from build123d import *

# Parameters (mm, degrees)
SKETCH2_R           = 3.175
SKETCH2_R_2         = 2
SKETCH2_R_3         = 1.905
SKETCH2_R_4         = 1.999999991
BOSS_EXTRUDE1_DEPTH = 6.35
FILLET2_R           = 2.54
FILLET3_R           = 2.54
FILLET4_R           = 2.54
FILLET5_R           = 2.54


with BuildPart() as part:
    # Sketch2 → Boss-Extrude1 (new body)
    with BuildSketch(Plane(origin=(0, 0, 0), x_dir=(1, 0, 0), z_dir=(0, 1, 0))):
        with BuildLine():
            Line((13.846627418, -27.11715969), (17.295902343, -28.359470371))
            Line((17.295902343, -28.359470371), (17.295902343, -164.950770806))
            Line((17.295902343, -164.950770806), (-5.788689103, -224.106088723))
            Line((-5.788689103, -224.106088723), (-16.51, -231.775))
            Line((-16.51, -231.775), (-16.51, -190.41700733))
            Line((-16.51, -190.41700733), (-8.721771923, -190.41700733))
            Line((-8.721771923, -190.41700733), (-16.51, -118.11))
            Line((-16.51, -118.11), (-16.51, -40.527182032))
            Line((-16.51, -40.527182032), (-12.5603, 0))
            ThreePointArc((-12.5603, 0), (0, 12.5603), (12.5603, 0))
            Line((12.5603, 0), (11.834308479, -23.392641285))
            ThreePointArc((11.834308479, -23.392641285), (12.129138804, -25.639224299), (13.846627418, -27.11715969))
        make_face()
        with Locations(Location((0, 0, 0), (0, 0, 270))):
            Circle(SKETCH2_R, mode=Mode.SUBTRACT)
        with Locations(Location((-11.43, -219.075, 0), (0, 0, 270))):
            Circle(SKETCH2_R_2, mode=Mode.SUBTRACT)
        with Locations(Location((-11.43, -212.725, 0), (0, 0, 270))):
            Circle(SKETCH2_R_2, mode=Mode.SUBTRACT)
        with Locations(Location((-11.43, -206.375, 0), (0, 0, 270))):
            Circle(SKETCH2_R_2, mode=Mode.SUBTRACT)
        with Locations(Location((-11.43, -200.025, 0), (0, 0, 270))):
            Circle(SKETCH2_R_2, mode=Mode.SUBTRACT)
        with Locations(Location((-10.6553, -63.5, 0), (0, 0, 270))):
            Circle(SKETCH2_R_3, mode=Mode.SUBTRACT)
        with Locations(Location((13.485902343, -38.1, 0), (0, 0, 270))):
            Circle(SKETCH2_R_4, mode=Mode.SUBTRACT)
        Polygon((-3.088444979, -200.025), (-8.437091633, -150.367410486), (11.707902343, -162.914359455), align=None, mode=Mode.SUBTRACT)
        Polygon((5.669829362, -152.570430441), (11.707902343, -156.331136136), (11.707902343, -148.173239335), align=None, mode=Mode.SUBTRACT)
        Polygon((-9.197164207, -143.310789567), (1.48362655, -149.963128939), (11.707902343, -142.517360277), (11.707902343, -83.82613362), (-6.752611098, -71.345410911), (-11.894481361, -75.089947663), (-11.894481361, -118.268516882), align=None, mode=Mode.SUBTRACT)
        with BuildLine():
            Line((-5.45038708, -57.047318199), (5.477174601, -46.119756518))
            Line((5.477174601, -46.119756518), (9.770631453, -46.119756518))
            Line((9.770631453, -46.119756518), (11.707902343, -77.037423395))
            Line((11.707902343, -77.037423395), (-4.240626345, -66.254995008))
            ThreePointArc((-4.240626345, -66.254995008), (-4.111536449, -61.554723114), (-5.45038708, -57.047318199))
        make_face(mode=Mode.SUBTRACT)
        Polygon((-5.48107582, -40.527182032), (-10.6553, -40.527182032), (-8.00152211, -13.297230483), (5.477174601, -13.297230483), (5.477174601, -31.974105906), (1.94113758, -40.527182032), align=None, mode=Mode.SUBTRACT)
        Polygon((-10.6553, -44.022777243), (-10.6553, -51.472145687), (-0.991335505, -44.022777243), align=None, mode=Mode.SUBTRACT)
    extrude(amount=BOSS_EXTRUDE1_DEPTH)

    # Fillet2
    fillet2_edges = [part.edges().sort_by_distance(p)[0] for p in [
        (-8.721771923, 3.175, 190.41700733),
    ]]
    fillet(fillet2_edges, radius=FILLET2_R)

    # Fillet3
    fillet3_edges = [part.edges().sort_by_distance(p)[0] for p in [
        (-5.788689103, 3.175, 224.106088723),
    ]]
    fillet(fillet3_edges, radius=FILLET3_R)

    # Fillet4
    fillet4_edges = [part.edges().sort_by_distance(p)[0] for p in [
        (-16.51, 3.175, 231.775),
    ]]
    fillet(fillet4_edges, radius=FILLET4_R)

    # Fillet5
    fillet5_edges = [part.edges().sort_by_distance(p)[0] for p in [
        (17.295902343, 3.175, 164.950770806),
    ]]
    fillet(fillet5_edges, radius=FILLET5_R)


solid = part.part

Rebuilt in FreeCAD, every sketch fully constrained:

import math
import FreeCAD as App
import Part
import Sketcher
from FreeCAD import Vector
Q = App.Units.Quantity


def edges_at(feature, points):
    """Names of the edges that pass closest to the given points."""
    edges = feature.Shape.Edges
    near = lambda p: min(range(len(edges)), key=lambda i: edges[i].distToShape(Part.Vertex(*p))[0])
    return sorted({f"Edge{near(p) + 1}" for p in points})


def add_polygon(sketch, points):
    """Adds a closed chain of lines whose ends are joined by coincident constraints."""
    first, n = sketch.GeometryCount, len(points)
    for a, b in zip(points, points[1:] + points[:1]):
        sketch.addGeometry(Part.LineSegment(App.Vector(*a, 0), App.Vector(*b, 0)), False)
    for i in range(n):
        sketch.addConstraint(Sketcher.Constraint("Coincident", first + i, 2, first + (i + 1) % n, 1))

doc = App.newDocument("Part")
params = doc.addObject("Spreadsheet::Sheet", "Params")
for row, (alias, value) in enumerate([
    ("sketch1_diameter", "0.15 in"),
    ("sketch1_diameter2", "0.25 in"),
    ("sketch1_radius", "0.125 in"),
    ("sketch1_length", "2.5 in"),
    ("pad1_length", "0.25 in"),
    ("fillet_radius", "0.1 in"),
    ("fillet2_radius", "0.1 in"),
    ("fillet3_radius", "0.1 in"),
    ("fillet4_radius", "0.1 in"),
], start=1):
    params.set(f"A{row}", alias)
    params.set(f"B{row}", "=" + value)
    params.setAlias(f"B{row}", alias)

body = doc.addObject("PartDesign::Body", "Body")

sketch1 = body.newObject("Sketcher::SketchObject", "Sketch")
sketch1.AttachmentSupport = (doc.getObject("XZ_Plane"), [""])
sketch1.MapMode = "FlatFace"
sketch1.addGeometry(Part.LineSegment(Vector(17.295902, 28.35947, 0), Vector(13.846627, 27.11716, 0)), False)
sketch1.addGeometry(Part.ArcOfCircle(Part.Circle(Vector(14.9225, 24.13, 0), Vector(0, 0, 1), 3.175), math.radians(109.807283), math.radians(193.428925)), False)
sketch1.addGeometry(Part.LineSegment(Vector(11.834308, 23.392641, 0), Vector(12.5603, 0, 0)), False)
sketch1.addGeometry(Part.ArcOfCircle(Part.Circle(Vector(0, 0, 0), Vector(0, 0, 1), 12.5603), math.radians(180), math.radians(360)), False)
sketch1.addGeometry(Part.LineSegment(Vector(-12.5603, 0, 0), Vector(-16.51, 40.527182, 0)), False)
sketch1.addGeometry(Part.LineSegment(Vector(-16.51, 40.527182, 0), Vector(-16.51, 118.11, 0)), False)
sketch1.addGeometry(Part.LineSegment(Vector(-16.51, 118.11, 0), Vector(-8.721772, 190.417007, 0)), False)
sketch1.addGeometry(Part.LineSegment(Vector(-8.721772, 190.417007, 0), Vector(-16.51, 190.417007, 0)), False)
sketch1.addGeometry(Part.LineSegment(Vector(-16.51, 190.417007, 0), Vector(-16.51, 231.775, 0)), False)
sketch1.addGeometry(Part.LineSegment(Vector(-16.51, 231.775, 0), Vector(-5.788689, 224.106089, 0)), False)
sketch1.addGeometry(Part.LineSegment(Vector(-5.788689, 224.106089, 0), Vector(17.295902, 164.950771, 0)), False)
sketch1.addGeometry(Part.LineSegment(Vector(17.295902, 164.950771, 0), Vector(17.295902, 28.35947, 0)), False)
add_polygon(sketch1, [(-3.088445, 200.025), (-8.437092, 150.36741), (11.707902, 162.914359)])
add_polygon(sketch1, [(5.669829, 152.57043), (11.707902, 148.173239), (11.707902, 156.331136)])
sketch1.addGeometry(Part.Circle(Vector(-11.43, 219.075, 0), Vector(0, 0, 1), 2), False)
sketch1.addGeometry(Part.Circle(Vector(-11.43, 212.725, 0), Vector(0, 0, 1), 2), False)
sketch1.addGeometry(Part.Circle(Vector(-11.43, 206.375, 0), Vector(0, 0, 1), 2), False)
sketch1.addGeometry(Part.Circle(Vector(-11.43, 200.025, 0), Vector(0, 0, 1), 2), False)
add_polygon(sketch1, [(-9.197164, 143.31079), (-11.894481, 118.268517), (-11.894481, 75.089948), (-6.752611, 71.345411), (11.707902, 83.826134), (11.707902, 142.51736), (1.483627, 149.963129)])
sketch1.addGeometry(Part.LineSegment(Vector(-5.450387, 57.047318, 0), Vector(5.477175, 46.119757, 0)), False)
sketch1.addGeometry(Part.LineSegment(Vector(5.477175, 46.119757, 0), Vector(9.770631, 46.119757, 0)), False)
sketch1.addGeometry(Part.LineSegment(Vector(9.770631, 46.119757, 0), Vector(11.707902, 77.037423, 0)), False)
sketch1.addGeometry(Part.LineSegment(Vector(11.707902, 77.037423, 0), Vector(-4.240626, 66.254995, 0)), False)
sketch1.addGeometry(Part.ArcOfCircle(Part.Circle(Vector(-18.917341, 63.5, 0), Vector(0, 0, 1), 14.933049), math.radians(-25.601379), math.radians(10.631387)), False)
sketch1.addGeometry(Part.Circle(Vector(13.485902, 38.1, 0), Vector(0, 0, 1), 2), False)
sketch1.addGeometry(Part.Circle(Vector(-10.6553, 63.5, 0), Vector(0, 0, 1), 1.905), False)
add_polygon(sketch1, [(-10.6553, 44.022777), (-0.991336, 44.022777), (-10.6553, 51.472146)])
add_polygon(sketch1, [(-10.6553, 40.527182), (-8.001522, 13.29723), (5.477175, 13.29723), (5.477175, 31.974106), (1.941138, 40.527182)])
sketch1.addGeometry(Part.Circle(Vector(0, 0, 0), Vector(0, 0, 1), 3.175), False)
sketch1.addConstraint([
    Sketcher.Constraint("Coincident", 0, 2, 1, 1),
    Sketcher.Constraint("Coincident", 1, 2, 2, 1),
    Sketcher.Constraint("Coincident", 2, 2, 3, 2),
    Sketcher.Constraint("Coincident", 3, 1, 4, 1),
    Sketcher.Constraint("Coincident", 4, 2, 5, 1),
    Sketcher.Constraint("Coincident", 5, 2, 6, 1),
    Sketcher.Constraint("Coincident", 6, 2, 7, 1),
    Sketcher.Constraint("Coincident", 7, 2, 8, 1),
    Sketcher.Constraint("Coincident", 8, 2, 9, 1),
    Sketcher.Constraint("Coincident", 9, 2, 10, 1),
    Sketcher.Constraint("Coincident", 10, 2, 11, 1),
    Sketcher.Constraint("Coincident", 11, 2, 0, 1),
    Sketcher.Constraint("Coincident", 29, 2, 30, 1),
    Sketcher.Constraint("Coincident", 30, 2, 31, 1),
    Sketcher.Constraint("Coincident", 31, 2, 32, 1),
    Sketcher.Constraint("Coincident", 32, 2, 33, 2),
    Sketcher.Constraint("Coincident", 33, 1, 29, 1),
    Sketcher.Constraint("Vertical", 5),
    Sketcher.Constraint("Horizontal", 7),
    Sketcher.Constraint("Vertical", 8),
    Sketcher.Constraint("Vertical", 11),
    Sketcher.Constraint("Vertical", 16),
    Sketcher.Constraint("Vertical", 23),
    Sketcher.Constraint("Vertical", 26),
    Sketcher.Constraint("Horizontal", 30),
    Sketcher.Constraint("Horizontal", 36),
    Sketcher.Constraint("Vertical", 38),
    Sketcher.Constraint("Horizontal", 40),
    Sketcher.Constraint("Vertical", 41),
    Sketcher.Constraint("Horizontal", 43),
    Sketcher.Constraint("Coincident", 3, 3, -1, 1),
    Sketcher.Constraint("Coincident", 44, 3, -1, 1),
    Sketcher.Constraint("PointOnObject", 2, 2, -1),
    Sketcher.Constraint("PointOnObject", 3, 1, -1),
    Sketcher.Constraint("Diameter", 35, Q("0.15 in")),
    Sketcher.Constraint("Diameter", 44, Q("0.25 in")),
    Sketcher.Constraint("Radius", 1, Q("0.125 in")),
    Sketcher.Constraint("DistanceY", 34, 3, 33, 3, Q("1 in")),
    Sketcher.Constraint("DistanceY", 34, 3, 35, 3, Q("1 in")),
    Sketcher.Constraint("DistanceY", 20, 3, 8, 2, Q("1 in")),
    Sketcher.Constraint("Distance", 10, Q("2.5 in")),
    Sketcher.Constraint("DistanceY", -1, 1, 33, 3, Q("2.5 in")),
    Sketcher.Constraint("Radius", 3, Q("0.4945 in")),
    Sketcher.Constraint("DistanceY", 20, 3, 18, 3, Q("0.5 in")),
    Sketcher.Constraint("DistanceY", 21, 3, 19, 3, Q("0.5 in")),
    Sketcher.Constraint("DistanceX", 5, 2, 21, 3, Q("0.2 in")),
    Sketcher.Constraint("DistanceX", 7, 2, 21, 3, Q("0.2 in")),
    Sketcher.Constraint("DistanceX", 7, 2, 20, 3, Q("0.2 in")),
    Sketcher.Constraint("DistanceX", 7, 2, 19, 3, Q("0.2 in")),
    Sketcher.Constraint("DistanceX", 7, 2, 18, 3, Q("0.2 in")),
    Sketcher.Constraint("DistanceY", 14, 2, 19, 3, Q("0.5 in")),
    Sketcher.Constraint("Diameter", 18, Q("4 mm")),
    Sketcher.Constraint("Diameter", 19, Q("4 mm")),
    Sketcher.Constraint("Diameter", 20, Q("4 mm")),
    Sketcher.Constraint("Diameter", 21, Q("4 mm")),
    Sketcher.Constraint("Diameter", 34, Q("4 mm")),
    Sketcher.Constraint("DistanceY", -1, 1, 1, 3, Q("0.95 in")),
    Sketcher.Constraint("DistanceX", 18, 3, -1, 1, Q("0.45 in")),
    Sketcher.Constraint("DistanceY", -1, 1, 5, 2, Q("4.65 in")),
    Sketcher.Constraint("DistanceY", 19, 3, 18, 3, Q("0.25 in")),
    Sketcher.Constraint("DistanceX", 34, 3, 11, 2, Q("0.15 in")),
    Sketcher.Constraint("DistanceX", 13, 2, 10, 2, Q("0.22 in")),
    Sketcher.Constraint("DistanceX", 15, 2, 10, 2, Q("0.22 in")),
    Sketcher.Constraint("DistanceY", -1, 1, 18, 3, Q("8.625 in")),
    Sketcher.Constraint("Radius", 33, Q("14.933049 mm")),
    Sketcher.Constraint("DistanceX", 35, 3, 1, 3, Q("1.007 in")),
    Sketcher.Constraint("DistanceX", 2, 2, 1, 3, Q("0.093 in")),
    Sketcher.Constraint("DistanceY", 11, 2, 11, 1, Q("136.5913 mm")),
    Sketcher.Constraint("DistanceX", 37, 2, -1, 1, Q("0.4195 in")),
    Sketcher.Constraint("DistanceX", 43, 2, -1, 1, Q("0.4195 in")),
    Sketcher.Constraint("Distance", 31, Q("30.978301 mm")),
    Sketcher.Constraint("Distance", 32, Q("19.251398 mm")),
    Sketcher.Constraint("DistanceX", 7, 2, 7, 1, Q("7.788228 mm")),
    Sketcher.Constraint("DistanceY", 23, 2, 23, 1, Q("43.178569 mm")),
    Sketcher.Constraint("DistanceY", 38, 2, 38, 1, Q("7.449368 mm")),
    Sketcher.Constraint("DistanceY", 26, 2, 13, 2, Q("20.396999 mm")),
    Sketcher.Constraint("DistanceY", 27, 2, 17, 2, Q("2.607302 mm")),
    Sketcher.Constraint("Distance", 12, Q("49.944812 mm")),
    Sketcher.Constraint("Distance", 13, Q("23.732819 mm")),
    Sketcher.Constraint("Distance", 22, Q("25.187119 mm")),
    Sketcher.Constraint("Distance", 28, Q("12.583041 mm")),
    Sketcher.Constraint("Distance", 39, Q("27.358962 mm")),
    Sketcher.Constraint("DistanceX", 30, 1, 30, 2, Q("4.293457 mm")),
    Sketcher.Constraint("DistanceX", 36, 1, 36, 2, Q("9.663964 mm")),
    Sketcher.Constraint("DistanceX", 40, 1, 40, 2, Q("13.478697 mm")),
    Sketcher.Constraint("DistanceX", 43, 2, 43, 1, Q("12.596438 mm")),
    Sketcher.Constraint("DistanceY", 5, 1, 5, 2, Q("77.582818 mm")),
    Sketcher.Constraint("DistanceY", 8, 1, 8, 2, Q("41.357993 mm")),
    Sketcher.Constraint("DistanceY", 16, 1, 16, 2, Q("8.157897 mm")),
    Sketcher.Constraint("DistanceY", 26, 1, 26, 2, Q("58.691227 mm")),
    Sketcher.Constraint("DistanceY", 41, 1, 41, 2, Q("18.676875 mm")),
    Sketcher.Constraint("DistanceX", 33, 3, -1, 1, Q("18.917341 mm")),
    Sketcher.Constraint("DistanceY", -1, 1, 0, 2, Q("27.11716 mm")),
    Sketcher.Constraint("DistanceX", -1, 1, 1, 2, Q("11.834308 mm")),
    Sketcher.Constraint("DistanceX", 9, 2, -1, 1, Q("5.788689 mm")),
    Sketcher.Constraint("DistanceY", -1, 1, 9, 2, Q("224.106089 mm")),
    Sketcher.Constraint("DistanceY", -1, 1, 10, 2, Q("164.950771 mm")),
    Sketcher.Constraint("DistanceX", 12, 2, -1, 1, Q("8.437092 mm")),
    Sketcher.Constraint("DistanceY", -1, 1, 12, 2, Q("150.36741 mm")),
    Sketcher.Constraint("DistanceY", -1, 1, 15, 2, Q("148.173239 mm")),
    Sketcher.Constraint("DistanceX", -1, 1, 17, 2, Q("5.669829 mm")),
    Sketcher.Constraint("DistanceY", -1, 1, 17, 2, Q("152.57043 mm")),
    Sketcher.Constraint("DistanceX", 22, 2, -1, 1, Q("11.894481 mm")),
    Sketcher.Constraint("DistanceX", 24, 2, -1, 1, Q("6.752611 mm")),
    Sketcher.Constraint("DistanceY", -1, 1, 24, 2, Q("71.345411 mm")),
    Sketcher.Constraint("DistanceY", -1, 1, 28, 2, Q("143.31079 mm")),
    Sketcher.Constraint("DistanceX", -1, 1, 30, 2, Q("9.770631 mm")),
    Sketcher.Constraint("DistanceY", -1, 1, 33, 1, Q("57.047318 mm")),
    Sketcher.Constraint("DistanceY", -1, 1, 39, 2, Q("13.29723 mm")),
    Sketcher.Constraint("DistanceY", 22, 2, 16, 2, Q("38.062619 mm")),
    Sketcher.Constraint("DistanceY", 31, 2, 25, 2, Q("6.78871 mm")),
    Sketcher.Constraint("DistanceX", 30, 2, 31, 2, Q("1.937271 mm")),
    Sketcher.Constraint("DistanceY", 36, 2, 29, 2, Q("2.096979 mm")),
    Sketcher.Constraint("DistanceX", 39, 2, 1, 2, Q("19.835831 mm")),
    Sketcher.Constraint("Distance", 25, Q("22.283604 mm")),
])
sketch1.setExpression("Constraints[55]", "Params.sketch1_diameter")
sketch1.setExpression("Constraints[56]", "Params.sketch1_diameter2")
sketch1.setExpression("Constraints[57]", "Params.sketch1_radius")
sketch1.setExpression("Constraints[61]", "Params.sketch1_length")
pad1 = body.newObject("PartDesign::Pad", "Pad")
pad1.Profile = sketch1
pad1.setExpression("Length", "Params.pad1_length")
pad1.Reversed = True
doc.recompute()

fillet = body.newObject("PartDesign::Fillet", "Fillet")
fillet.Base = (pad1, edges_at(pad1, [(-8.722, 3.175, 190.417)]))
fillet.setExpression("Radius", "Params.fillet_radius")
doc.recompute()

fillet2 = body.newObject("PartDesign::Fillet", "Fillet001")
fillet2.Base = (fillet, edges_at(fillet, [(-5.789, 3.175, 224.106)]))
fillet2.setExpression("Radius", "Params.fillet2_radius")
doc.recompute()

fillet3 = body.newObject("PartDesign::Fillet", "Fillet002")
fillet3.Base = (fillet2, edges_at(fillet2, [(-16.51, 3.175, 231.775)]))
fillet3.setExpression("Radius", "Params.fillet3_radius")
doc.recompute()

fillet4 = body.newObject("PartDesign::Fillet", "Fillet003")
fillet4.Base = (fillet3, edges_at(fillet3, [(17.296, 3.175, 164.951)]))
fillet4.setExpression("Radius", "Params.fillet4_radius")

doc.recompute()
